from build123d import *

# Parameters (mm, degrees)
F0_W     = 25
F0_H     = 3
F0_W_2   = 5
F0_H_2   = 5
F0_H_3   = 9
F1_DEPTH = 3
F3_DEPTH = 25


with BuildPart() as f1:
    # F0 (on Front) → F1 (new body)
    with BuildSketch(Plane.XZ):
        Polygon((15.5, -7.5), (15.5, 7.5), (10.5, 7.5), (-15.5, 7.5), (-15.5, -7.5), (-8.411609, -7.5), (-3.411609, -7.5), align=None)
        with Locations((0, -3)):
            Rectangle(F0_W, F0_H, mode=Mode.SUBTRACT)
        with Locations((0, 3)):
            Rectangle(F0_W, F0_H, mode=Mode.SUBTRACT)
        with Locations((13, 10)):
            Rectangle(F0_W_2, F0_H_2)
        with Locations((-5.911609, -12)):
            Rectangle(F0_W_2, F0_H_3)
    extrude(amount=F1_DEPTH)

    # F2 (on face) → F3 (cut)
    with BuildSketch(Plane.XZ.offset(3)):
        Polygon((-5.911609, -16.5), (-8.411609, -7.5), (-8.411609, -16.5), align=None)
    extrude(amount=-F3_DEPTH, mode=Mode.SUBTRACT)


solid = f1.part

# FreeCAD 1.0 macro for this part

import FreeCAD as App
import Part
import Sketcher

V = App.Vector
Q = App.Units.Quantity


def add_polygon(sketch, points):
    """Adds a closed chain of lines whose ends are joined by coincident constraints."""
    first, n = sketch.GeometryCount, len(points)
    for a, b in zip(points, points[1:] + points[:1]):
        sketch.addGeometry(Part.LineSegment(App.Vector(*a, 0), App.Vector(*b, 0)), False)
    for i in range(n):
        sketch.addConstraint(Sketcher.Constraint("Coincident", first + i, 2, first + (i + 1) % n, 1))

doc = App.newDocument("Part")
body = doc.addObject("PartDesign::Body", "Body")

# Sketch on XZ plane
sketch1 = body.newObject("Sketcher::SketchObject", "Sketch")
sketch1.AttachmentSupport = (doc.getObject("XZ_Plane"), [""])
sketch1.MapMode = "FlatFace"
add_polygon(sketch1, [(15.5, -7.5), (15.5, 12.5), (10.5, 12.5), (10.5, 7.5), (-15.5, 7.5), (-15.5, -7.5), (-8.4, -7.5), (-8.4, -16.5), (-3.4, -16.5), (-3.4, -7.5)])  # lines 0-9
add_polygon(sketch1, [(12.5, -4.5), (-12.5, -4.5), (-12.5, -1.5), (12.5, -1.5)])  # lines 10-13
add_polygon(sketch1, [(12.5, 1.5), (-12.5, 1.5), (-12.5, 4.5), (12.5, 4.5)])  # lines 14-17
sketch1.addConstraint(Sketcher.Constraint("Vertical", 0))
sketch1.addConstraint(Sketcher.Constraint("Horizontal", 1))
sketch1.addConstraint(Sketcher.Constraint("Vertical", 2))
sketch1.addConstraint(Sketcher.Constraint("Horizontal", 3))
sketch1.addConstraint(Sketcher.Constraint("Vertical", 4))
sketch1.addConstraint(Sketcher.Constraint("Horizontal", 5))
sketch1.addConstraint(Sketcher.Constraint("Vertical", 6))
sketch1.addConstraint(Sketcher.Constraint("Horizontal", 7))
sketch1.addConstraint(Sketcher.Constraint("Vertical", 8))
sketch1.addConstraint(Sketcher.Constraint("Horizontal", 9))
sketch1.addConstraint(Sketcher.Constraint("Horizontal", 10))
sketch1.addConstraint(Sketcher.Constraint("Vertical", 11))
sketch1.addConstraint(Sketcher.Constraint("Horizontal", 12))
sketch1.addConstraint(Sketcher.Constraint("Vertical", 13))
sketch1.addConstraint(Sketcher.Constraint("Horizontal", 14))
sketch1.addConstraint(Sketcher.Constraint("Vertical", 15))
sketch1.addConstraint(Sketcher.Constraint("Horizontal", 16))
sketch1.addConstraint(Sketcher.Constraint("Vertical", 17))
sketch1.addConstraint(Sketcher.Constraint("Symmetric", 3, 2, 9, 2, -1, 1))
sketch1.addConstraint(Sketcher.Constraint("Symmetric", 12, 2, 14, 2, -1, 1))
sketch1.addConstraint(Sketcher.Constraint("Symmetric", 10, 2, 16, 2, -1, 1))
sketch1.addConstraint(Sketcher.Constraint("Horizontal", 5, 2, 8, 2))
sketch1.addConstraint(Sketcher.Constraint("Vertical", 11, 2, 14, 2))
sketch1.addConstraint(Sketcher.Constraint("Equal", 1, 7))
sketch1.addConstraint(Sketcher.Constraint("Equal", 7, 2))
sketch1.addConstraint(Sketcher.Constraint("DistanceX", 1, 2, 1, 1, Q("5 mm")))
sketch1.addConstraint(Sketcher.Constraint("DistanceX", 3, 2, 3, 1, Q("26 mm")))
sketch1.addConstraint(Sketcher.Constraint("DistanceX", 10, 2, 10, 1, Q("25 mm")))
sketch1.addConstraint(Sketcher.Constraint("DistanceY", 0, 1, 0, 2, Q("20 mm")))
sketch1.addConstraint(Sketcher.Constraint("DistanceY", 6, 2, 6, 1, Q("9 mm")))
sketch1.addConstraint(Sketcher.Constraint("DistanceY", 11, 1, 11, 2, Q("3 mm")))
sketch1.addConstraint(Sketcher.Constraint("DistanceY", 4, 2, 10, 2, Q("3 mm")))
sketch1.addConstraint(Sketcher.Constraint("DistanceX", 5, 1, 5, 2, Q("7.088391 mm")))
pad1 = body.newObject("PartDesign::Pad", "Pad")
pad1.Profile = sketch1
pad1.Length = 3

# Sketch on XZ plane
sketch2 = body.newObject("Sketcher::SketchObject", "Sketch001")
sketch2.AttachmentSupport = (doc.getObject("XZ_Plane"), [""])
sketch2.MapMode = "FlatFace"
sketch2.AttachmentOffset = App.Placement(V(0, 0, 3), App.Rotation())
add_polygon(sketch2, [(-5.9, -16.5), (-8.4, -7.5), (-8.4, -16.5)])  # lines 0-2
sketch2.addConstraint(Sketcher.Constraint("Vertical", 1))
sketch2.addConstraint(Sketcher.Constraint("Horizontal", 2))
sketch2.addConstraint(Sketcher.Constraint("DistanceY", 1, 2, 1, 1, Q("9 mm")))
sketch2.addConstraint(Sketcher.Constraint("DistanceX", 2, 1, 2, 2, Q("2.5 mm")))
sketch2.addConstraint(Sketcher.Constraint("DistanceY", 0, 2, -1, 1, Q("7.5 mm")))
sketch2.addConstraint(Sketcher.Constraint("DistanceX", 0, 2, -1, 1, Q("8.411609 mm")))
pocket1 = body.newObject("PartDesign::Pocket", "Pocket")
pocket1.Profile = sketch2
pocket1.Length = 25

doc.recompute()
